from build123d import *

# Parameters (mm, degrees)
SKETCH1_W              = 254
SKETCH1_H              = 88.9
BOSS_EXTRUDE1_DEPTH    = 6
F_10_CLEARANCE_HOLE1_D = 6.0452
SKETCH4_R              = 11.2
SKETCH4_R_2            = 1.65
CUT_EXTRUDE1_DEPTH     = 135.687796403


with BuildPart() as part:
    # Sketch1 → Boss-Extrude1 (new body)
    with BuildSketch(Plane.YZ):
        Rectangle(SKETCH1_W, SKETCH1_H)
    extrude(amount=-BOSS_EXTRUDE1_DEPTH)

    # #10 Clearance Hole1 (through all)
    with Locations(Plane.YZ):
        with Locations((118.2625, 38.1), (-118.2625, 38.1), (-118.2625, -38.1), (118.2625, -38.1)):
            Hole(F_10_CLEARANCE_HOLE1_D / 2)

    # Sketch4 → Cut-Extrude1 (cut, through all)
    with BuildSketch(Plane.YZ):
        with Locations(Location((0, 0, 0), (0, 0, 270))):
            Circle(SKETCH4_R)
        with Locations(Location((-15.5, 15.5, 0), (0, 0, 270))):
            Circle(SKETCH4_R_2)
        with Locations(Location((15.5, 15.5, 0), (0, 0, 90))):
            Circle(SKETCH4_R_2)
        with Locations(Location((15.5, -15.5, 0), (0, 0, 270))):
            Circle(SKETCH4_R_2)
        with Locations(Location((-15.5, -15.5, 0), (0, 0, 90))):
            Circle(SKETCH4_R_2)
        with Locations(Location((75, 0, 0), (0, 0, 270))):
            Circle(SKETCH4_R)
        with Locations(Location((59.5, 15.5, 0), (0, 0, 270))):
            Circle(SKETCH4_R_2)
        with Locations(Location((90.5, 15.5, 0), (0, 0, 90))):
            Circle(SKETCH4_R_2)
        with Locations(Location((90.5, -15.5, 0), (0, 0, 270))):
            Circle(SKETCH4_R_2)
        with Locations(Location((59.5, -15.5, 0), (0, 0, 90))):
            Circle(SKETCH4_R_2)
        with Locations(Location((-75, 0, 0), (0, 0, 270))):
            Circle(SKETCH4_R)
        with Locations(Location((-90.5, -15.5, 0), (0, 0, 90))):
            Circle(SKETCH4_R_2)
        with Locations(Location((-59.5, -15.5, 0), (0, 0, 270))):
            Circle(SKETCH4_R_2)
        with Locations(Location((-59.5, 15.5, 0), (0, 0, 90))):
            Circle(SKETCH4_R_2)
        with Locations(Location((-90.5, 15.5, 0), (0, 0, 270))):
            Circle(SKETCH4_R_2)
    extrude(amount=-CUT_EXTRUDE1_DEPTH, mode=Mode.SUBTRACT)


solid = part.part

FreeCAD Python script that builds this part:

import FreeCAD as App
import Part
import Sketcher
from FreeCAD import Vector

doc = App.newDocument("Part")
body = doc.addObject("PartDesign::Body", "Body")

# Sketch on YZ plane
sketch1 = body.newObject("Sketcher::SketchObject", "Sketch")
sketch1.AttachmentSupport = (doc.getObject("YZ_Plane"), [""])
sketch1.MapMode = "FlatFace"
sketch1.addGeometry(Part.LineSegment(Vector(-127, 44, 0), Vector(-127, -44, 0)), False)
sketch1.addGeometry(Part.LineSegment(Vector(-127, -44, 0), Vector(127, -44, 0)), False)
sketch1.addGeometry(Part.LineSegment(Vector(127, -44, 0), Vector(127, 44, 0)), False)
sketch1.addGeometry(Part.LineSegment(Vector(127, 44, 0), Vector(-127, 44, 0)), False)
sketch1.addConstraint(Sketcher.Constraint("Coincident", 0, 2, 1, 1))
sketch1.addConstraint(Sketcher.Constraint("Coincident", 1, 2, 2, 1))
sketch1.addConstraint(Sketcher.Constraint("Coincident", 2, 2, 3, 1))
sketch1.addConstraint(Sketcher.Constraint("Coincident", 3, 2, 0, 1))
sketch1.addConstraint(Sketcher.Constraint("Vertical", 0))
sketch1.addConstraint(Sketcher.Constraint("Horizontal", 1))
sketch1.addConstraint(Sketcher.Constraint("Vertical", 2))
sketch1.addConstraint(Sketcher.Constraint("Horizontal", 3))
sketch1.addConstraint(Sketcher.Constraint("Symmetric", 0, 2, 2, 2, -1, 1))
sketch1.addConstraint(Sketcher.Constraint("DistanceX", 1, 1, 1, 2, 254.0))
sketch1.addConstraint(Sketcher.Constraint("DistanceY", 0, 2, 0, 1, 88.9))
pad1 = body.newObject("PartDesign::Pad", "Pad")
pad1.Profile = sketch1
pad1.Length = 6
pad1.Reversed = True

# Sketch on YZ plane
sketch2 = body.newObject("Sketcher::SketchObject", "Sketch001")
sketch2.AttachmentSupport = (doc.getObject("YZ_Plane"), [""])
sketch2.MapMode = "FlatFace"
sketch2.addGeometry(Part.Circle(Vector(118.3, 38.1, 0), Vector(0, 0, 1), 3), False)
sketch2.addGeometry(Part.Circle(Vector(-118.3, 38.1, 0), Vector(0, 0, 1), 3), False)
sketch2.addGeometry(Part.Circle(Vector(-118.3, -38.1, 0), Vector(0, 0, 1), 3), False)
sketch2.addGeometry(Part.Circle(Vector(118.3, -38.1, 0), Vector(0, 0, 1), 3), False)
sketch2.addConstraint(Sketcher.Constraint("Equal", 0, 1))
sketch2.addConstraint(Sketcher.Constraint("Equal", 1, 2))
sketch2.addConstraint(Sketcher.Constraint("Equal", 2, 3))
sketch2.addConstraint(Sketcher.Constraint("Symmetric", 0, 3, 2, 3, -1, 1))
sketch2.addConstraint(Sketcher.Constraint("Symmetric", 1, 3, 3, 3, -1, 1))
sketch2.addConstraint(Sketcher.Constraint("Symmetric", 0, 3, 1, 3, -2))
sketch2.addConstraint(Sketcher.Constraint("Diameter", 0, 6.0452))
sketch2.addConstraint(Sketcher.Constraint("DistanceY", -1, 1, 0, 3, 38.1))
sketch2.addConstraint(Sketcher.Constraint("DistanceX", 1, 3, 0, 3, 236.525))
doc.recompute()
hole = body.newObject("PartDesign::Hole", "Hole")
hole.Profile = sketch2
hole.ThreadType = "None"
hole.Diameter = 6.0452
hole.DepthType = "ThroughAll"

# Sketch on YZ plane
sketch3 = body.newObject("Sketcher::SketchObject", "Sketch002")
sketch3.AttachmentSupport = (doc.getObject("YZ_Plane"), [""])
sketch3.MapMode = "FlatFace"
sketch3.addGeometry(Part.Circle(Vector(0, 0, 0), Vector(0, 0, 1), 11.2), False)
sketch3.addGeometry(Part.Circle(Vector(-15.5, 15.5, 0), Vector(0, 0, 1), 1.6), False)
sketch3.addGeometry(Part.Circle(Vector(15.5, 15.5, 0), Vector(0, 0, 1), 1.6), False)
sketch3.addGeometry(Part.Circle(Vector(15.5, -15.5, 0), Vector(0, 0, 1), 1.6), False)
sketch3.addGeometry(Part.Circle(Vector(-15.5, -15.5, 0), Vector(0, 0, 1), 1.6), False)
sketch3.addGeometry(Part.Circle(Vector(75, 0, 0), Vector(0, 0, 1), 11.2), False)
sketch3.addGeometry(Part.Circle(Vector(59.5, 15.5, 0), Vector(0, 0, 1), 1.6), False)
sketch3.addGeometry(Part.Circle(Vector(90.5, 15.5, 0), Vector(0, 0, 1), 1.6), False)
sketch3.addGeometry(Part.Circle(Vector(90.5, -15.5, 0), Vector(0, 0, 1), 1.6), False)
sketch3.addGeometry(Part.Circle(Vector(59.5, -15.5, 0), Vector(0, 0, 1), 1.6), False)
sketch3.addGeometry(Part.Circle(Vector(-75, 0, 0), Vector(0, 0, 1), 11.2), False)
sketch3.addGeometry(Part.Circle(Vector(-90.5, -15.5, 0), Vector(0, 0, 1), 1.6), False)
sketch3.addGeometry(Part.Circle(Vector(-59.5, -15.5, 0), Vector(0, 0, 1), 1.6), False)
sketch3.addGeometry(Part.Circle(Vector(-59.5, 15.5, 0), Vector(0, 0, 1), 1.6), False)
sketch3.addGeometry(Part.Circle(Vector(-90.5, 15.5, 0), Vector(0, 0, 1), 1.6), False)
sketch3.addConstraint(Sketcher.Constraint("Coincident", 0, 3, -1, 1))
sketch3.addConstraint(Sketcher.Constraint("Equal", 1, 2))
sketch3.addConstraint(Sketcher.Constraint("Equal", 2, 3))
sketch3.addConstraint(Sketcher.Constraint("Equal", 3, 4))
sketch3.addConstraint(Sketcher.Constraint("Equal", 0, 5))
sketch3.addConstraint(Sketcher.Constraint("Equal", 4, 6))
sketch3.addConstraint(Sketcher.Constraint("Equal", 6, 7))
sketch3.addConstraint(Sketcher.Constraint("Equal", 7, 8))
sketch3.addConstraint(Sketcher.Constraint("Equal", 8, 9))
sketch3.addConstraint(Sketcher.Constraint("Equal", 5, 10))
sketch3.addConstraint(Sketcher.Constraint("Equal", 9, 11))
sketch3.addConstraint(Sketcher.Constraint("Equal", 11, 12))
sketch3.addConstraint(Sketcher.Constraint("Equal", 12, 13))
sketch3.addConstraint(Sketcher.Constraint("Equal", 13, 14))
sketch3.addConstraint(Sketcher.Constraint("Symmetric", 1, 3, 3, 3, -1, 1))
sketch3.addConstraint(Sketcher.Constraint("Symmetric", 2, 3, 4, 3, -1, 1))
sketch3.addConstraint(Sketcher.Constraint("Symmetric", 5, 3, 10, 3, -1, 1))
sketch3.addConstraint(Sketcher.Constraint("Symmetric", 7, 3, 11, 3, -1, 1))
sketch3.addConstraint(Sketcher.Constraint("Symmetric", 6, 3, 12, 3, -1, 1))
sketch3.addConstraint(Sketcher.Constraint("Symmetric", 9, 3, 13, 3, -1, 1))
sketch3.addConstraint(Sketcher.Constraint("Symmetric", 8, 3, 14, 3, -1, 1))
sketch3.addConstraint(Sketcher.Constraint("Symmetric", 1, 3, 2, 3, -2))
sketch3.addConstraint(Sketcher.Constraint("Symmetric", 8, 3, 11, 3, -2))
sketch3.addConstraint(Sketcher.Constraint("Symmetric", 9, 3, 12, 3, -2))
sketch3.addConstraint(Sketcher.Constraint("PointOnObject", 5, 3, -1))
sketch3.addConstraint(Sketcher.Constraint("Horizontal", 2, 3, 6, 3))
sketch3.addConstraint(Sketcher.Constraint("Horizontal", 6, 3, 7, 3))
sketch3.addConstraint(Sketcher.Constraint("Diameter", 0, 22.4))
sketch3.addConstraint(Sketcher.Constraint("Diameter", 1, 3.3))
sketch3.addConstraint(Sketcher.Constraint("DistanceX", -1, 1, 5, 3, 75.0))
sketch3.addConstraint(Sketcher.Constraint("DistanceX", 1, 3, 2, 3, 31.0))
sketch3.addConstraint(Sketcher.Constraint("DistanceY", 3, 3, 2, 3, 31.0))
sketch3.addConstraint(Sketcher.Constraint("DistanceX", 2, 3, 6, 3, 44.0))
sketch3.addConstraint(Sketcher.Constraint("DistanceX", 6, 3, 7, 3, 31.0))
pocket1 = body.newObject("PartDesign::Pocket", "Pocket")
pocket1.Profile = sketch3
pocket1.Type = "ThroughAll"

doc.recompute()
